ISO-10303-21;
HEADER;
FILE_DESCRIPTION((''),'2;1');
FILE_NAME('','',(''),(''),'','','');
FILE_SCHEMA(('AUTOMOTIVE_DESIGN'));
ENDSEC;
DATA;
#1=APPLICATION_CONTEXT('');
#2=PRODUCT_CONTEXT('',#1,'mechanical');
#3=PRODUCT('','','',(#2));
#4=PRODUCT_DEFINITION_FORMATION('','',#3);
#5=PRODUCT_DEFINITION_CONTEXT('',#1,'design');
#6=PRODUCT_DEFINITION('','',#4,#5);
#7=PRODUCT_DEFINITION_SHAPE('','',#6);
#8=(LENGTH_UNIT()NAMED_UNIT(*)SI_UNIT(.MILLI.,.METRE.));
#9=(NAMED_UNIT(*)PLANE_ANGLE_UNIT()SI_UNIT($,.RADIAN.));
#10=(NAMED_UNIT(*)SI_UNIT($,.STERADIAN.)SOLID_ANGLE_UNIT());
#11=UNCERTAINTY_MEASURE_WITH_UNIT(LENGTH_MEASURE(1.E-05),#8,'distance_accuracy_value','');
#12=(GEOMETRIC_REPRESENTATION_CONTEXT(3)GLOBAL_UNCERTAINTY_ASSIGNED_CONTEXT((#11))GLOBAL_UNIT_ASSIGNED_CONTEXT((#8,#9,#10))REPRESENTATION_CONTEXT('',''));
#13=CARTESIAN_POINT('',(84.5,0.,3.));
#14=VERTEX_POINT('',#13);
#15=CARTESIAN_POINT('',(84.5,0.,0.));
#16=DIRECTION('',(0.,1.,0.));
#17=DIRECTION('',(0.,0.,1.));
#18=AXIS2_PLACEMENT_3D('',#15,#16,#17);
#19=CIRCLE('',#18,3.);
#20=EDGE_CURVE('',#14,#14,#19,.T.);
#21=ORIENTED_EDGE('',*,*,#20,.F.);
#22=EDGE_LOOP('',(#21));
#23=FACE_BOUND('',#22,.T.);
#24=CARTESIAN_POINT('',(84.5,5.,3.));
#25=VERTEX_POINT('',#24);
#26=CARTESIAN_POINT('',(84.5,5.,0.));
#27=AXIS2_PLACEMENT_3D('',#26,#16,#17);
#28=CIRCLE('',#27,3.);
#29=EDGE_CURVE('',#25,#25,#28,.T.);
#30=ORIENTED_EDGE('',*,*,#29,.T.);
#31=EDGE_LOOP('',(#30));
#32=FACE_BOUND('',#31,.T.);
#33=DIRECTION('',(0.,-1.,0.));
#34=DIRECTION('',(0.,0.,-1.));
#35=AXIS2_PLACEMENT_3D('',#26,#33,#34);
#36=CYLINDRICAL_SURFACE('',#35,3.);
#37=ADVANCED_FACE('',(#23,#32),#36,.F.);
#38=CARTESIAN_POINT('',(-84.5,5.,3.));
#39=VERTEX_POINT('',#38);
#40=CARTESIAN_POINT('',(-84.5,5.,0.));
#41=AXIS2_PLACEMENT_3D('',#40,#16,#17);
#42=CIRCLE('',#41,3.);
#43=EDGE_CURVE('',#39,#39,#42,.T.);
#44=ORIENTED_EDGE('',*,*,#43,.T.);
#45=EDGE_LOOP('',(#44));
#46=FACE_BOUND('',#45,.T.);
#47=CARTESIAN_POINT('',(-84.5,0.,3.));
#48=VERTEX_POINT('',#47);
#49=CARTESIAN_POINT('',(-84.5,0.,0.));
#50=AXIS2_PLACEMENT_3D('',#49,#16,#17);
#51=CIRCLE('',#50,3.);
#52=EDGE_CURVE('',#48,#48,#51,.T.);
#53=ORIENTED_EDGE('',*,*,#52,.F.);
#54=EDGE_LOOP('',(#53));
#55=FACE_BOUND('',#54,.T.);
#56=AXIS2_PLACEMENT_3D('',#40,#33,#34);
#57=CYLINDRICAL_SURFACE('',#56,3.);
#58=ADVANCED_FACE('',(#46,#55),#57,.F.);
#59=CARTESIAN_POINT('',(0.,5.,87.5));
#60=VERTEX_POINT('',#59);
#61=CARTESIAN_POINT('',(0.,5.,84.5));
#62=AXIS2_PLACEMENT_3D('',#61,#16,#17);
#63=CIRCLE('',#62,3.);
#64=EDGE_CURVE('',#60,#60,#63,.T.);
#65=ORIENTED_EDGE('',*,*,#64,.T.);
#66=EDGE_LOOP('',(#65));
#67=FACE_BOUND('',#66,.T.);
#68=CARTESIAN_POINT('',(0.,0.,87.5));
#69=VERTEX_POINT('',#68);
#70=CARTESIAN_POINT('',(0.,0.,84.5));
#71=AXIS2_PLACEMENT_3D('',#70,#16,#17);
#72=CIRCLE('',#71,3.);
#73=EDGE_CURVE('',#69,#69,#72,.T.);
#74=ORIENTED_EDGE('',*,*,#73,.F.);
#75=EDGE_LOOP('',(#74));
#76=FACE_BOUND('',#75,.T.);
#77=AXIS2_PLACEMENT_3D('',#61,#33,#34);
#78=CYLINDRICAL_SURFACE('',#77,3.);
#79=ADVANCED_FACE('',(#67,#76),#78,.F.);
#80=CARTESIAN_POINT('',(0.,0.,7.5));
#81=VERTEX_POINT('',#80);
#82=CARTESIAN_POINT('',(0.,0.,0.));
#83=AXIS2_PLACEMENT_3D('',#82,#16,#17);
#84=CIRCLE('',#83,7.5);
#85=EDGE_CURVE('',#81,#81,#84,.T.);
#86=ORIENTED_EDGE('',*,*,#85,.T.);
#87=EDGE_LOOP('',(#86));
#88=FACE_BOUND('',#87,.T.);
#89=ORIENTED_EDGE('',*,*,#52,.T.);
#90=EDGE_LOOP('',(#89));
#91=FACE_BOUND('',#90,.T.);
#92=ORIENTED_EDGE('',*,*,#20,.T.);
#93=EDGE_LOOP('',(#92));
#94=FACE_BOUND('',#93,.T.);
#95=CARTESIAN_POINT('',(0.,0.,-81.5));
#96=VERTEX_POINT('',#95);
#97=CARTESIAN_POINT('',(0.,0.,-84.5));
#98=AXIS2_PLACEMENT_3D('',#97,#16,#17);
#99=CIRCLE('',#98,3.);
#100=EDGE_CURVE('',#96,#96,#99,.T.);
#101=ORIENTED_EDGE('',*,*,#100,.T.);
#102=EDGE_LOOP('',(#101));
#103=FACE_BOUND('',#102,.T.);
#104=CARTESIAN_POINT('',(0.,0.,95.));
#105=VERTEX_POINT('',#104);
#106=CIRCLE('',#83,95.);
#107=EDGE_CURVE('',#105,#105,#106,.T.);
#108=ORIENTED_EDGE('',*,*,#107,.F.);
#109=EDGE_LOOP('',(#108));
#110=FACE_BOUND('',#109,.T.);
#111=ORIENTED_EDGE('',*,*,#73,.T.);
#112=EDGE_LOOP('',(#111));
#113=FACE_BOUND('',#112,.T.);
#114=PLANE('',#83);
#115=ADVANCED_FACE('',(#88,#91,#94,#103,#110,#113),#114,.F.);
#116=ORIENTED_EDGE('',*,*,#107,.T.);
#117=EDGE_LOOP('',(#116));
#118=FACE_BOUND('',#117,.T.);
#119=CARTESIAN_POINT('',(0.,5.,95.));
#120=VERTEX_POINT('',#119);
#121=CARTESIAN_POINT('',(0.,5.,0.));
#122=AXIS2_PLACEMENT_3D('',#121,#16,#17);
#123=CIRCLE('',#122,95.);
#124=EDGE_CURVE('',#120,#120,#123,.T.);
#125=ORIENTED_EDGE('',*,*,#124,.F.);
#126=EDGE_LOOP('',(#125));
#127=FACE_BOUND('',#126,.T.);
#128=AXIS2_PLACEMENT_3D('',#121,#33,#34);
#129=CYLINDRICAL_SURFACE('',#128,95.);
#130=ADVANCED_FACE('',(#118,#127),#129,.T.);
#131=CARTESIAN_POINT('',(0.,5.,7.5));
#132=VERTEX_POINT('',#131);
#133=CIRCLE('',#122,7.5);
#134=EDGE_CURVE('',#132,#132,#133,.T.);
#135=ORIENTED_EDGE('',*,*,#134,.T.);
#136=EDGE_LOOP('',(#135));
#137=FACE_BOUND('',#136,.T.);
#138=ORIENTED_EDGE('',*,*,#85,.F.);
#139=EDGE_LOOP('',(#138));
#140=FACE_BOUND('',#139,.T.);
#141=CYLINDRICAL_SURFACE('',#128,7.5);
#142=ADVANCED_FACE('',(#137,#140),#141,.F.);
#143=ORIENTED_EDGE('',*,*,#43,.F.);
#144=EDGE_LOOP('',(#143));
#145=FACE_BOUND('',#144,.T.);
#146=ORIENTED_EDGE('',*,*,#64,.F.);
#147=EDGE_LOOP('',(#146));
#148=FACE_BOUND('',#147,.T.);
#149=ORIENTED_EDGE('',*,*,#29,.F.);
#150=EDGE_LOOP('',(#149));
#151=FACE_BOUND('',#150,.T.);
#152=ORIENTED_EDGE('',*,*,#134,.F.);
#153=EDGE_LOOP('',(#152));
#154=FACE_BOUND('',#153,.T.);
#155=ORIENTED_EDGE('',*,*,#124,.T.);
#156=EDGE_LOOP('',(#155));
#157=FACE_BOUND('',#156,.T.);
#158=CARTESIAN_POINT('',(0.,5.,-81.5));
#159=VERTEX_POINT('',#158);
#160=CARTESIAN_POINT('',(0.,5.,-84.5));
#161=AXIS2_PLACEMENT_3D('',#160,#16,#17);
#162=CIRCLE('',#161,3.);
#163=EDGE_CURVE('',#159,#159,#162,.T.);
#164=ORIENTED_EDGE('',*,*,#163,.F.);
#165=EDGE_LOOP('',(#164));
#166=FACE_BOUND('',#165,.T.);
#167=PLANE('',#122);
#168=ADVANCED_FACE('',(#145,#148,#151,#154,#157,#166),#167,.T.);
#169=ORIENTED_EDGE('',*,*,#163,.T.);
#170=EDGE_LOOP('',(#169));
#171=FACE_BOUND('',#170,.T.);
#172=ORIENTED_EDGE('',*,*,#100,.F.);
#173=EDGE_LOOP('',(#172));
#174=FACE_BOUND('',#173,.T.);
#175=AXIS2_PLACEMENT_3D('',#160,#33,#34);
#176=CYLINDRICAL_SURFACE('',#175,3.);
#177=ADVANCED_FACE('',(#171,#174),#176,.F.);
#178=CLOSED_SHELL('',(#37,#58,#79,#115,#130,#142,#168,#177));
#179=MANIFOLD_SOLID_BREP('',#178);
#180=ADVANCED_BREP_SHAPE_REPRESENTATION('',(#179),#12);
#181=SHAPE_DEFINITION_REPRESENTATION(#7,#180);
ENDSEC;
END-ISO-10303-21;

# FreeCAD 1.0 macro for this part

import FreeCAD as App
import Part
import Sketcher
from FreeCAD import Vector

doc = App.newDocument("Part")
params = doc.addObject("Spreadsheet::Sheet", "Params")
for row, (alias, value) in enumerate([
    ("sketch1_diameter", "190 mm"),
    ("sketch1_diameter2", "6 mm"),
    ("sketch1_diameter3", "15 mm"),
    ("pad1_length", "5 mm"),
], start=1):
    params.set(f"A{row}", alias)
    params.set(f"B{row}", "=" + value)
    params.setAlias(f"B{row}", alias)

body = doc.addObject("PartDesign::Body", "Body")

sketch1 = body.newObject("Sketcher::SketchObject", "Sketch")
sketch1.AttachmentSupport = (doc.getObject("XZ_Plane"), [""])
sketch1.MapMode = "FlatFace"
sketch1.addGeometry([
    Part.Circle(Vector(0, 0, 0), Vector(0, 0, 1), 95),
    Part.Circle(Vector(0, -84.5, 0), Vector(0, 0, 1), 3),
    Part.Circle(Vector(-84.5, 0, 0), Vector(0, 0, 1), 3),
    Part.Circle(Vector(84.5, 0, 0), Vector(0, 0, 1), 3),
    Part.Circle(Vector(0, 0, 0), Vector(0, 0, 1), 7.5),
    Part.Circle(Vector(0, 84.5, 0), Vector(0, 0, 1), 3),
], False)
sketch1.addConstraint([
    Sketcher.Constraint("Coincident", 0, 3, -1, 1),
    Sketcher.Constraint("Coincident", 4, 3, -1, 1),
    Sketcher.Constraint("Equal", 1, 2),
    Sketcher.Constraint("Equal", 2, 3),
    Sketcher.Constraint("Equal", 3, 5),
    Sketcher.Constraint("Symmetric", 2, 3, 3, 3, -1, 1),
    Sketcher.Constraint("Symmetric", 1, 3, 5, 3, -1, 1),
    Sketcher.Constraint("PointOnObject", 1, 3, -2),
    Sketcher.Constraint("PointOnObject", 2, 3, -1),
    Sketcher.Constraint("Diameter", 0, 190.0),
    Sketcher.Constraint("Diameter", 1, 6.0),
    Sketcher.Constraint("Diameter", 4, 15.0),
    Sketcher.Constraint("DistanceX", 2, 3, 3, 3, 169.0),
    Sketcher.Constraint("DistanceY", 1, 3, 5, 3, 169.0),
])
sketch1.setExpression("Constraints[9]", "Params.sketch1_diameter")
sketch1.setExpression("Constraints[10]", "Params.sketch1_diameter2")
sketch1.setExpression("Constraints[11]", "Params.sketch1_diameter3")
pad1 = body.newObject("PartDesign::Pad", "Pad")
pad1.Profile = sketch1
pad1.setExpression("Length", "Params.pad1_length")
pad1.Reversed = True

doc.recompute()
